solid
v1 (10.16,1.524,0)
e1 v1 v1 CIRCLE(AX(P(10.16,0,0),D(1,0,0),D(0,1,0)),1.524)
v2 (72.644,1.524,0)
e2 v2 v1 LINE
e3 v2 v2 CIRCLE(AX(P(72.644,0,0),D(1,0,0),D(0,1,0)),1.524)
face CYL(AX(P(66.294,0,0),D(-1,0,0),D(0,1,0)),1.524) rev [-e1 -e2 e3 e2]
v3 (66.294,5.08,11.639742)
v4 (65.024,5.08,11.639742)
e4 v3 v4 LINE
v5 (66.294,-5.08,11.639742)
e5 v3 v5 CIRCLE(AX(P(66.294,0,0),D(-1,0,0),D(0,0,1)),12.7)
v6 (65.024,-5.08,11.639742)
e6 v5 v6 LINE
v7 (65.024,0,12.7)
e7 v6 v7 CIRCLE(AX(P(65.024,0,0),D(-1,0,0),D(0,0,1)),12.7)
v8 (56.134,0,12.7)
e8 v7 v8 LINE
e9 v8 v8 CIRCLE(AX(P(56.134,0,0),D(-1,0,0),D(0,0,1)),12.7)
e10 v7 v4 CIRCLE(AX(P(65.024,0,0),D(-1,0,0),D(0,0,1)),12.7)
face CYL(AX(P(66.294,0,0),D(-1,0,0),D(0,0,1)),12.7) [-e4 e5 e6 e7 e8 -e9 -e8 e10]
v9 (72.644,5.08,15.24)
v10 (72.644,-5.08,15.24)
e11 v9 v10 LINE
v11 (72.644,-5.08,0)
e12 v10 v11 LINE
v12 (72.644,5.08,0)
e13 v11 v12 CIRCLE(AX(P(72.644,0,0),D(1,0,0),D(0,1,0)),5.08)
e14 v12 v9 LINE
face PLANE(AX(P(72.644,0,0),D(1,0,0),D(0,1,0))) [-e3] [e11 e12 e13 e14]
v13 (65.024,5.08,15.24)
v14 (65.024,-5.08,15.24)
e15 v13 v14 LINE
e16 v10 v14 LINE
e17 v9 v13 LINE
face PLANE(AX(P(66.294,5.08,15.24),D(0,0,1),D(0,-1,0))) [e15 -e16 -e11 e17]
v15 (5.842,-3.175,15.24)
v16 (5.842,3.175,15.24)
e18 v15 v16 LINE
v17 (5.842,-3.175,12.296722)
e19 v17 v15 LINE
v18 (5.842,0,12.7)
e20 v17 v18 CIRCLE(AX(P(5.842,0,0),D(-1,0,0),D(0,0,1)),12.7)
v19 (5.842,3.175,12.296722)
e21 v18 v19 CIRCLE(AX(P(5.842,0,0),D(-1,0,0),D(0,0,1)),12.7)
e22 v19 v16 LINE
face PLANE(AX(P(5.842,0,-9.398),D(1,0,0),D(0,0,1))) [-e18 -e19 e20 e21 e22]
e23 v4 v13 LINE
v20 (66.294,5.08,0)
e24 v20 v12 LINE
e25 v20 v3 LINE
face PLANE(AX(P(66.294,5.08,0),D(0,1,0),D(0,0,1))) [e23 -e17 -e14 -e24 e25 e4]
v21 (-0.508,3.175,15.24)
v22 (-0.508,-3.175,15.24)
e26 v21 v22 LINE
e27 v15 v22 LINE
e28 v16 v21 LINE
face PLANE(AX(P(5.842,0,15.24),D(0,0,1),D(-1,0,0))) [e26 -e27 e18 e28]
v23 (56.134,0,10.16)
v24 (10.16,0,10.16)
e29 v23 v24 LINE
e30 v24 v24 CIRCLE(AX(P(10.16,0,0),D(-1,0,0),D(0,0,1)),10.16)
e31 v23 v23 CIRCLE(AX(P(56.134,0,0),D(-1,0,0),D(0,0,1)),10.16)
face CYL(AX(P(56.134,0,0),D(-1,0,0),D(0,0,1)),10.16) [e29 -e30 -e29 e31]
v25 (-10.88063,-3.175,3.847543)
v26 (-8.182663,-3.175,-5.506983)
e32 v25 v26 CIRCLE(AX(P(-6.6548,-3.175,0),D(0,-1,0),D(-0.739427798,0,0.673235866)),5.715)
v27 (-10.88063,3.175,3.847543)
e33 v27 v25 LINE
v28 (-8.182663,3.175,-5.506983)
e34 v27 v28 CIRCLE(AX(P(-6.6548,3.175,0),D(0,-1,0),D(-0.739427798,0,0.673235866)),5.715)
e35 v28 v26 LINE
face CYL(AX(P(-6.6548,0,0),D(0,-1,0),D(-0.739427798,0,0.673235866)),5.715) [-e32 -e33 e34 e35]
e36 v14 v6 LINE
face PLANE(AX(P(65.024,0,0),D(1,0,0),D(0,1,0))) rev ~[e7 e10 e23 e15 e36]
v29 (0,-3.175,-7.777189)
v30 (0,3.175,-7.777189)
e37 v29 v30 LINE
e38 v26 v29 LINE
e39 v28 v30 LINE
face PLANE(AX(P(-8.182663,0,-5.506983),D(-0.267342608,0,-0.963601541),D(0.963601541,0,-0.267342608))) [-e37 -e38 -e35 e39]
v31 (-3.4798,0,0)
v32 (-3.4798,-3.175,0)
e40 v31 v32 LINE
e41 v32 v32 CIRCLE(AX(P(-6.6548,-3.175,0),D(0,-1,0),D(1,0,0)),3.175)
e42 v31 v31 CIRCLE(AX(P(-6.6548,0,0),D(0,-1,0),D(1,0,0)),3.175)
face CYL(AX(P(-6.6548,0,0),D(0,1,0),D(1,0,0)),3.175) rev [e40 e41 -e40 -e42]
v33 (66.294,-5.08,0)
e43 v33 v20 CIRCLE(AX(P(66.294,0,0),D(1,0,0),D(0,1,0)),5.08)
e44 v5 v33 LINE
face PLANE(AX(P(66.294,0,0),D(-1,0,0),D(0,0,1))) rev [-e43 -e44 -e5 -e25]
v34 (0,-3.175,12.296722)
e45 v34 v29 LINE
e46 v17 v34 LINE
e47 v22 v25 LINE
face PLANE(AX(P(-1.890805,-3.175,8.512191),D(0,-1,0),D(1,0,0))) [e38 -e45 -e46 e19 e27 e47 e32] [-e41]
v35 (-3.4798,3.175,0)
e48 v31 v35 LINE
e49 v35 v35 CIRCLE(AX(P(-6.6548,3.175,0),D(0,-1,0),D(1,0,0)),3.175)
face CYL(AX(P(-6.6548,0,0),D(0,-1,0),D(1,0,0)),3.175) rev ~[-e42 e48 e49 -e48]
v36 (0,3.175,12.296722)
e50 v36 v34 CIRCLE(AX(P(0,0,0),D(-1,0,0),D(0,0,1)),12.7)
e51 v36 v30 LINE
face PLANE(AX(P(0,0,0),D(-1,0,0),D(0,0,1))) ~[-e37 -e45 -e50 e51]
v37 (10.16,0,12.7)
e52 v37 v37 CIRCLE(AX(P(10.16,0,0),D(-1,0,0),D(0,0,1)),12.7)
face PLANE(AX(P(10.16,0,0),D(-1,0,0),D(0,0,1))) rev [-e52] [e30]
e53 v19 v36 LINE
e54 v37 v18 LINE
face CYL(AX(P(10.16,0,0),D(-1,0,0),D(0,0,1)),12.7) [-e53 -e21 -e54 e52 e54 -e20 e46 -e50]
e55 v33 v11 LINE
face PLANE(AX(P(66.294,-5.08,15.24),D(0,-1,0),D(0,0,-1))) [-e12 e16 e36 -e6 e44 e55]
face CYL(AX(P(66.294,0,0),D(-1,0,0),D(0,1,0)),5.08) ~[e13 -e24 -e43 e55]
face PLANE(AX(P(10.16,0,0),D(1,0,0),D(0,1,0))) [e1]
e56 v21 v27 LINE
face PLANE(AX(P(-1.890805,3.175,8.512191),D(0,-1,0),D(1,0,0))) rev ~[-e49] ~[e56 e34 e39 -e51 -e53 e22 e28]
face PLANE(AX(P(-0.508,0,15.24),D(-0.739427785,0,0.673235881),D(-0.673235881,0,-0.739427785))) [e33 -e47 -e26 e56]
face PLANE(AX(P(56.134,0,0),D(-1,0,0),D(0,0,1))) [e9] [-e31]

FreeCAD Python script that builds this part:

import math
import FreeCAD as App
import Part
import Sketcher

V = App.Vector
Q = App.Units.Quantity


def add_polygon(sketch, points):
    """Adds a closed chain of lines whose ends are joined by coincident constraints."""
    first, n = sketch.GeometryCount, len(points)
    for a, b in zip(points, points[1:] + points[:1]):
        sketch.addGeometry(Part.LineSegment(App.Vector(*a, 0), App.Vector(*b, 0)), False)
    for i in range(n):
        sketch.addConstraint(Sketcher.Constraint("Coincident", first + i, 2, first + (i + 1) % n, 1))

doc = App.newDocument("Part")
body = doc.addObject("PartDesign::Body", "Body")

# Sketch on XZ plane
sketch1 = body.newObject("Sketcher::SketchObject", "Sketch")
sketch1.AttachmentSupport = (doc.getObject("XZ_Plane"), [""])
sketch1.MapMode = "FlatFace"
add_polygon(sketch1, [(66.294, 0), (66.294, 12.7), (56.134, 12.7), (56.134, 10.16), (10.16, 10.16), (10.16, 12.7), (0, 12.7), (0, 0)])  # lines 0-7
sketch1.addConstraint([
    Sketcher.Constraint("Vertical", 0),
    Sketcher.Constraint("Horizontal", 1),
    Sketcher.Constraint("Vertical", 2),
    Sketcher.Constraint("Horizontal", 3),
    Sketcher.Constraint("Vertical", 4),
    Sketcher.Constraint("Horizontal", 5),
    Sketcher.Constraint("Vertical", 6),
    Sketcher.Constraint("Horizontal", 7),
    Sketcher.Constraint("Coincident", 6, 2, -1, 1),
    Sketcher.Constraint("Horizontal", 1, 2, 4, 2),
    Sketcher.Constraint("Equal", 1, 5),
    Sketcher.Constraint("DistanceX", 1, 2, 1, 1, Q("0.4 in")),
    Sketcher.Constraint("DistanceY", 0, 1, 0, 2, Q("0.5 in")),
    Sketcher.Constraint("DistanceY", 2, 2, 2, 1, Q("0.1 in")),
    Sketcher.Constraint("DistanceX", 3, 2, 3, 1, Q("1.81 in")),
])
revolution = body.newObject("PartDesign::Revolution", "Revolution")
revolution.Profile = sketch1
revolution.ReferenceAxis = (sketch1, ["H_Axis"])
revolution.Angle = 360

# Sketch on YZ plane
sketch2 = body.newObject("Sketcher::SketchObject", "Sketch001")
sketch2.AttachmentSupport = (doc.getObject("YZ_Plane"), [""])
sketch2.MapMode = "FlatFace"
sketch2.AttachmentOffset = App.Placement(V(0, 0, 2.61 * 25.4), App.Rotation())
sketch2.addGeometry([
    Part.ArcOfCircle(Part.Circle(V(0, 0, 0), V(0, 0, 1), 5.08), math.radians(180), math.radians(360)),  # 0
    Part.LineSegment(V(5.08, 0, 0), V(5.08, 15.24, 0)),  # 1
    Part.LineSegment(V(5.08, 15.24, 0), V(-5.08, 15.24, 0)),  # 2
    Part.LineSegment(V(-5.08, 15.24, 0), V(-5.08, 0, 0)),  # 3
    Part.Circle(V(0, 0, 0), V(0, 0, 1), 1.524),  # 4
], False)
sketch2.addConstraint([
    Sketcher.Constraint("Tangent", 0, 2, 1, 1),
    Sketcher.Constraint("Coincident", 1, 2, 2, 1),
    Sketcher.Constraint("Coincident", 2, 2, 3, 1),
    Sketcher.Constraint("Tangent", 3, 2, 0, 1),
    Sketcher.Constraint("Vertical", 1),
    Sketcher.Constraint("Horizontal", 2),
    Sketcher.Constraint("Vertical", 3),
    Sketcher.Constraint("Coincident", 0, 3, -1, 1),
    Sketcher.Constraint("Coincident", 4, 3, -1, 1),
    Sketcher.Constraint("Radius", 0, Q("0.2 in")),
    Sketcher.Constraint("Diameter", 4, Q("0.12 in")),
    Sketcher.Constraint("DistanceY", 1, 1, 1, 2, Q("0.6 in")),
])
pad1 = body.newObject("PartDesign::Pad", "Pad")
pad1.Profile = sketch2
pad1.Type = "TwoLengths"
pad1.Length = Q("0.25 in")
pad1.Length2 = Q("0.05 in")

# Sketch on YZ plane
sketch3 = body.newObject("Sketcher::SketchObject", "Sketch002")
sketch3.AttachmentSupport = (doc.getObject("YZ_Plane"), [""])
sketch3.MapMode = "FlatFace"
sketch3.AttachmentOffset = App.Placement(V(0, 0, 2.61 * 25.4), App.Rotation())
sketch3.addGeometry(Part.Circle(V(0, 0, 0), V(0, 0, 1), 1.524), False)
sketch3.addConstraint([
    Sketcher.Constraint("Coincident", 0, 3, -1, 1),
    Sketcher.Constraint("Diameter", 0, Q("0.12 in")),
])
pocket1 = body.newObject("PartDesign::Pocket", "Pocket")
pocket1.Profile = sketch3
pocket1.Length = Q("2.21 in")

# Sketch on XZ plane
sketch4 = body.newObject("Sketcher::SketchObject", "Sketch003")
sketch4.AttachmentSupport = (doc.getObject("XZ_Plane"), [""])
sketch4.MapMode = "FlatFace"
sketch4.addGeometry([
    Part.LineSegment(V(5.842, 15.24, 0), V(-0.508, 15.24, 0)),  # 0
    Part.LineSegment(V(-0.508, 15.24, 0), V(-10.88063, 3.847543, 0)),  # 1
    Part.ArcOfCircle(Part.Circle(V(-6.6548, 0, 0), V(0, 0, 1), 5.715), math.radians(137.682696), math.radians(254.493803)),  # 2
    Part.LineSegment(V(-8.182663, -5.506983, 0), V(5.842, -9.398, 0)),  # 3
    Part.LineSegment(V(5.842, -9.398, 0), V(5.842, 15.24, 0)),  # 4
    Part.Circle(V(-6.6548, 0, 0), V(0, 0, 1), 3.175),  # 5
], False)
sketch4.addConstraint([
    Sketcher.Constraint("Coincident", 0, 2, 1, 1),
    Sketcher.Constraint("Tangent", 1, 2, 2, 1),
    Sketcher.Constraint("Tangent", 2, 2, 3, 1),
    Sketcher.Constraint("Coincident", 3, 2, 4, 1),
    Sketcher.Constraint("Coincident", 4, 2, 0, 1),
    Sketcher.Constraint("Horizontal", 0),
    Sketcher.Constraint("Vertical", 4),
    Sketcher.Constraint("Coincident", 5, 3, 2, 3),
    Sketcher.Constraint("PointOnObject", 2, 3, -1),
    Sketcher.Constraint("Diameter", 5, Q("0.25 in")),
    Sketcher.Constraint("Radius", 2, Q("0.225 in")),
    Sketcher.Constraint("DistanceX", 0, 2, 0, 1, Q("0.25 in")),
    Sketcher.Constraint("DistanceY", 4, 1, 4, 2, Q("0.97 in")),
    Sketcher.Constraint("DistanceY", -1, 1, 0, 2, Q("0.6 in")),
    Sketcher.Constraint("DistanceX", 0, 2, -1, 1, Q("0.02 in")),
    Sketcher.Constraint("DistanceX", 2, 3, -1, 1, Q("0.262 in")),
])
pad2 = body.newObject("PartDesign::Pad", "Pad001")
pad2.Profile = sketch4
pad2.Type = "TwoLengths"
pad2.Length = Q("0.125 in")
pad2.Length2 = Q("0.125 in")

doc.recompute()
